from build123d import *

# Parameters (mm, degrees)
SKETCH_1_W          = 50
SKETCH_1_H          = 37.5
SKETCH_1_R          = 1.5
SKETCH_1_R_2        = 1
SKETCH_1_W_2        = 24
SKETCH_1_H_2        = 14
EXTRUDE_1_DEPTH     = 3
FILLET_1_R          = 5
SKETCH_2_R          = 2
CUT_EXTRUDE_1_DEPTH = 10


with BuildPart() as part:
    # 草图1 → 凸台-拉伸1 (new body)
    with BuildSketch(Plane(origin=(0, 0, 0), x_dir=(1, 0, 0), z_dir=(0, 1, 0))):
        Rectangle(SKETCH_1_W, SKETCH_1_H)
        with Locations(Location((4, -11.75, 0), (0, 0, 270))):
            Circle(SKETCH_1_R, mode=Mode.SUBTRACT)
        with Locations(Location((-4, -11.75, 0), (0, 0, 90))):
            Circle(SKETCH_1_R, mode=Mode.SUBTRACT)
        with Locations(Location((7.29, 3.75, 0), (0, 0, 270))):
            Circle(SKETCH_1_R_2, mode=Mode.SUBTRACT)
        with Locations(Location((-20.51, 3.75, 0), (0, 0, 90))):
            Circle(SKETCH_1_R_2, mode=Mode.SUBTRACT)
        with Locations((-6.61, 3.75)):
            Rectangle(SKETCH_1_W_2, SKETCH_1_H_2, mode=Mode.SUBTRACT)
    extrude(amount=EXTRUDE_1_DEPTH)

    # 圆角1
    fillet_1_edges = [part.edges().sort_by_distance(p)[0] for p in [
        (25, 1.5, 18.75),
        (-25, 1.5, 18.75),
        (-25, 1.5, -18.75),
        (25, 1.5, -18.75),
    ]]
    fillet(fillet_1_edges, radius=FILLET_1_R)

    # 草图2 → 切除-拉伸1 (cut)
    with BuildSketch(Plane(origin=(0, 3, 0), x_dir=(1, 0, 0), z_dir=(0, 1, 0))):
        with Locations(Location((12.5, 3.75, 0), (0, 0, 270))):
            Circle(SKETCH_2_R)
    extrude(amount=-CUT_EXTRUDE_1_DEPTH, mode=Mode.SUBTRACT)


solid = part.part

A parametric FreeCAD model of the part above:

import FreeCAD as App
import Part
import Sketcher
from FreeCAD import Vector


def edges_at(feature, points):
    """Names of the edges that pass closest to the given points."""
    edges = feature.Shape.Edges
    near = lambda p: min(range(len(edges)), key=lambda i: edges[i].distToShape(Part.Vertex(*p))[0])
    return sorted({f"Edge{near(p) + 1}" for p in points})

doc = App.newDocument("Part")
body = doc.addObject("PartDesign::Body", "Body")

# Sketch on XZ plane
sketch1 = body.newObject("Sketcher::SketchObject", "Sketch")
sketch1.AttachmentSupport = (doc.getObject("XZ_Plane"), [""])
sketch1.MapMode = "FlatFace"
sketch1.addGeometry([
    Part.LineSegment(Vector(-25, -18.8, 0), Vector(-25, 18.8, 0)),  # 0
    Part.LineSegment(Vector(-25, 18.8, 0), Vector(25, 18.8, 0)),  # 1
    Part.LineSegment(Vector(25, 18.8, 0), Vector(25, -18.8, 0)),  # 2
    Part.LineSegment(Vector(25, -18.8, 0), Vector(-25, -18.8, 0)),  # 3
    Part.Circle(Vector(-4, 11.8, 0), Vector(0, 0, 1), 1.5),  # 4
    Part.Circle(Vector(4, 11.8, 0), Vector(0, 0, 1), 1.5),  # 5
    Part.Circle(Vector(-20.5, -3.8, 0), Vector(0, 0, 1), 1),  # 6
    Part.LineSegment(Vector(5.4, 3.2, 0), Vector(-18.6, 3.2, 0)),  # 7
    Part.LineSegment(Vector(-18.6, 3.2, 0), Vector(-18.6, -10.8, 0)),  # 8
    Part.LineSegment(Vector(-18.6, -10.8, 0), Vector(5.4, -10.8, 0)),  # 9
    Part.LineSegment(Vector(5.4, -10.8, 0), Vector(5.4, 3.2, 0)),  # 10
    Part.Circle(Vector(7.3, -3.8, 0), Vector(0, 0, 1), 1),  # 11
], False)
sketch1.addConstraint([
    Sketcher.Constraint("Coincident", 0, 2, 1, 1),
    Sketcher.Constraint("Coincident", 1, 2, 2, 1),
    Sketcher.Constraint("Coincident", 2, 2, 3, 1),
    Sketcher.Constraint("Coincident", 3, 2, 0, 1),
    Sketcher.Constraint("Coincident", 7, 2, 8, 1),
    Sketcher.Constraint("Coincident", 8, 2, 9, 1),
    Sketcher.Constraint("Coincident", 9, 2, 10, 1),
    Sketcher.Constraint("Coincident", 10, 2, 7, 1),
    Sketcher.Constraint("Vertical", 0),
    Sketcher.Constraint("Horizontal", 1),
    Sketcher.Constraint("Vertical", 2),
    Sketcher.Constraint("Horizontal", 3),
    Sketcher.Constraint("Horizontal", 7),
    Sketcher.Constraint("Vertical", 8),
    Sketcher.Constraint("Horizontal", 9),
    Sketcher.Constraint("Vertical", 10),
    Sketcher.Constraint("Equal", 4, 5),
    Sketcher.Constraint("Equal", 6, 11),
    Sketcher.Constraint("Symmetric", 0, 2, 2, 2, -1, 1),
    Sketcher.Constraint("Symmetric", 4, 3, 5, 3, -2),
    Sketcher.Constraint("Horizontal", 6, 3, 11, 3),
    Sketcher.Constraint("Diameter", 4, 3.0),
    Sketcher.Constraint("Diameter", 6, 2.0),
    Sketcher.Constraint("DistanceX", 1, 1, 1, 2, 50.0),
    Sketcher.Constraint("DistanceX", 7, 2, 7, 1, 24.0),
    Sketcher.Constraint("DistanceY", 8, 2, 8, 1, 14.0),
    Sketcher.Constraint("DistanceY", 0, 1, 0, 2, 37.5),
    Sketcher.Constraint("DistanceX", 4, 3, -1, 1, 4.0),
    Sketcher.Constraint("DistanceY", 4, 3, 0, 2, 7.0),
    Sketcher.Constraint("DistanceY", 2, 2, 11, 3, 15.0),
    Sketcher.Constraint("DistanceY", 6, 3, 7, 2, 7.0),
    Sketcher.Constraint("DistanceX", 6, 3, 11, 3, 27.8),
    Sketcher.Constraint("DistanceX", 6, 3, 7, 2, 1.9),
    Sketcher.Constraint("DistanceX", 6, 3, -1, 1, 20.51),
])
pad1 = body.newObject("PartDesign::Pad", "Pad")
pad1.Profile = sketch1
pad1.Length = 3
pad1.Reversed = True
doc.recompute()

fillet = body.newObject("PartDesign::Fillet", "Fillet")
fillet.Base = (pad1, edges_at(pad1, [
    (25, 1.5, 18.75),
    (-25, 1.5, 18.75),
    (-25, 1.5, -18.75),
    (25, 1.5, -18.75),
]))
fillet.Radius = 5

# Sketch on XZ plane
sketch2 = body.newObject("Sketcher::SketchObject", "Sketch001")
sketch2.AttachmentSupport = (doc.getObject("XZ_Plane"), [""])
sketch2.MapMode = "FlatFace"
sketch2.AttachmentOffset = App.Placement(Vector(0, 0, -3), App.Rotation())
sketch2.addGeometry(Part.Circle(Vector(12.5, -3.8, 0), Vector(0, 0, 1), 2), False)
sketch2.addConstraint([
    Sketcher.Constraint("Diameter", 0, 4.0),
    Sketcher.Constraint("DistanceX", -1, 1, 0, 3, 12.5),
    Sketcher.Constraint("DistanceY", 0, 3, -1, 1, 3.75),
])
pocket1 = body.newObject("PartDesign::Pocket", "Pocket")
pocket1.Profile = sketch2
pocket1.Length = 10
pocket1.Reversed = True

doc.recompute()
